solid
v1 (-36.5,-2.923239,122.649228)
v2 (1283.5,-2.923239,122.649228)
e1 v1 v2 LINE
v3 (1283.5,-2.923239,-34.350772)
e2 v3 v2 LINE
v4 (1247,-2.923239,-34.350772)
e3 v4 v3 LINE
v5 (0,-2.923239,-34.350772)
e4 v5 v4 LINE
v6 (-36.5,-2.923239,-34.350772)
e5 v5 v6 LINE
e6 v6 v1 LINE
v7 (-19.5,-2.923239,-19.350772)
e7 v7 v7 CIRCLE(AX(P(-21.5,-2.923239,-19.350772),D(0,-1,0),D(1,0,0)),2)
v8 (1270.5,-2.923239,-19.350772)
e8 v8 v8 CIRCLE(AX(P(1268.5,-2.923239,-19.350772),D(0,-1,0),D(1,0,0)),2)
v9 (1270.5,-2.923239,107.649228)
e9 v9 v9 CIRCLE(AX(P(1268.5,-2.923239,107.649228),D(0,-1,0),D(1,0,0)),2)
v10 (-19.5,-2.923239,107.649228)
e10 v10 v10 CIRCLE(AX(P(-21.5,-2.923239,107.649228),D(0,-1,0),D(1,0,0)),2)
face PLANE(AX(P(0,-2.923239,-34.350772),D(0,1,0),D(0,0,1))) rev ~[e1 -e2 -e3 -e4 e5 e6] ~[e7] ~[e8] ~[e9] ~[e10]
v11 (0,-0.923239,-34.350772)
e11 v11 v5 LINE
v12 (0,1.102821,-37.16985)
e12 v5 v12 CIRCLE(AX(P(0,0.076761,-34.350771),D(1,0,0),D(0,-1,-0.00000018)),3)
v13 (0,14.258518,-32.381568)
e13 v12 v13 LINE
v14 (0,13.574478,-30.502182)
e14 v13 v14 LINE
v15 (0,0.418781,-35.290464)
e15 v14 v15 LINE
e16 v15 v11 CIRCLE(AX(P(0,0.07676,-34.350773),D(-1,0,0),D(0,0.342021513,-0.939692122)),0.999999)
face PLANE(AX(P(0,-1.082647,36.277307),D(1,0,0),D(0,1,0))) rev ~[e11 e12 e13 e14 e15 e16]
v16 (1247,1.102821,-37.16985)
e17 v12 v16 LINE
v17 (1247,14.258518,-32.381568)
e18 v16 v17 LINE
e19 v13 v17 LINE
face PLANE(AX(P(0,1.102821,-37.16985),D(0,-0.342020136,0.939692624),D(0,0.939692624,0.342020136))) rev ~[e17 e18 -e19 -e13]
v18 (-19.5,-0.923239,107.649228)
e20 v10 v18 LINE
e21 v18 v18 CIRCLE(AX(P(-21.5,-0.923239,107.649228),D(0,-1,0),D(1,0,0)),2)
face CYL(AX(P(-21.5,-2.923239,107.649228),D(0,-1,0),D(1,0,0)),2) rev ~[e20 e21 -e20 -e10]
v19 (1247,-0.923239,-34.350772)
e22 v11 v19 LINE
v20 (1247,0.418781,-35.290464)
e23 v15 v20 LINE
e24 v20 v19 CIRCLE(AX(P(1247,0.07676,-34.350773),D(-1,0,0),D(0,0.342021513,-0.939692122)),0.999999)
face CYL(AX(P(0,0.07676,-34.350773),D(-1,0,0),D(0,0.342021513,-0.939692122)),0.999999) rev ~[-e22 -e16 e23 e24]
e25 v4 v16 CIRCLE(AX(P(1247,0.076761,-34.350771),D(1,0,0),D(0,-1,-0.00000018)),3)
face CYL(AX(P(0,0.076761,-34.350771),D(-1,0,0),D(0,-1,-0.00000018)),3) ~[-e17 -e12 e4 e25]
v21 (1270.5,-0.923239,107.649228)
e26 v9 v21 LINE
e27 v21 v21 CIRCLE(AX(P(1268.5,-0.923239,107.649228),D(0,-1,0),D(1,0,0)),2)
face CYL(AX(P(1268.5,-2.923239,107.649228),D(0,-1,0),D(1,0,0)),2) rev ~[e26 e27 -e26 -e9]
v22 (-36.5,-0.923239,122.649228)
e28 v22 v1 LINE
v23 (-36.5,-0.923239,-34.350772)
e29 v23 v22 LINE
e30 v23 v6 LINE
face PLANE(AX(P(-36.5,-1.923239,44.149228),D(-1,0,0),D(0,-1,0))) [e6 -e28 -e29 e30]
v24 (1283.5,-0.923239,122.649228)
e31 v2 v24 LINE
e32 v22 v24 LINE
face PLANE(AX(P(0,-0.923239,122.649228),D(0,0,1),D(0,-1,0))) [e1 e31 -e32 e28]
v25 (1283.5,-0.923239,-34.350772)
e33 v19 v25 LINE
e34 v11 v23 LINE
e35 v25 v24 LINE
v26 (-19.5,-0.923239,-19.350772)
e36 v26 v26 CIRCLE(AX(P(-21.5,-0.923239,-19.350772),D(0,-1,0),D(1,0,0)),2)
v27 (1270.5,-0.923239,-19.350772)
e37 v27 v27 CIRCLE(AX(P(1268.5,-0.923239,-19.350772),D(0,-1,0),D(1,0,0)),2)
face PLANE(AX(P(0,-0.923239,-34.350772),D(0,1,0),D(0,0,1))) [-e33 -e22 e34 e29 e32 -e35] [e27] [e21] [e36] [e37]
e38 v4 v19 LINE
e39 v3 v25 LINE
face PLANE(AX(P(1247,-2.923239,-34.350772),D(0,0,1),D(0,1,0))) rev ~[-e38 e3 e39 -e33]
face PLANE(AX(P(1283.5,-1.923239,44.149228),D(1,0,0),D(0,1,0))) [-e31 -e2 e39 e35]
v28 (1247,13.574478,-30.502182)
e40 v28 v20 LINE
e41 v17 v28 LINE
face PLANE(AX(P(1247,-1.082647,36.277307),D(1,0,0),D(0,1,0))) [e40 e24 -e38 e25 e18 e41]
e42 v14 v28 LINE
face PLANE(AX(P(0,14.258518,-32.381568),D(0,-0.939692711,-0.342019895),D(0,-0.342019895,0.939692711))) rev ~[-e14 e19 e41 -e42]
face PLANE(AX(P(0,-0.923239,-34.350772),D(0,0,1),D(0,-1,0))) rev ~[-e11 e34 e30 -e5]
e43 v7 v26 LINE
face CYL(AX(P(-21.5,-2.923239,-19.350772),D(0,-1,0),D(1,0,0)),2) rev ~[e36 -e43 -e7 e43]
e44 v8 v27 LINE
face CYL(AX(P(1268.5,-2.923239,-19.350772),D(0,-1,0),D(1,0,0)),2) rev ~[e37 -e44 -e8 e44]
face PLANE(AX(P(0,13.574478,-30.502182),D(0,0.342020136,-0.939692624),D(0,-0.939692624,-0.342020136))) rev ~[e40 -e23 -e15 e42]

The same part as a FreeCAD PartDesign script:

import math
import FreeCAD as App
import Part
import Sketcher
Q = App.Units.Quantity


def add_polygon(sketch, points):
    """Adds a closed chain of lines whose ends are joined by coincident constraints."""
    first, n = sketch.GeometryCount, len(points)
    for a, b in zip(points, points[1:] + points[:1]):
        sketch.addGeometry(Part.LineSegment(App.Vector(*a, 0), App.Vector(*b, 0)), False)
    for i in range(n):
        sketch.addConstraint(Sketcher.Constraint("Coincident", first + i, 2, first + (i + 1) % n, 1))

doc = App.newDocument("Part")
body = doc.addObject("PartDesign::Body", "Body")

# Sketch on YZ plane
sketch1 = doc.addObject("Sketcher::SketchObject", "Sketch")
body.addObject(sketch1)
sketch1.AttachmentSupport = (doc.YZ_Plane, [""])
sketch1.MapMode = "FlatFace"
sketch1.addGeometry([
    Part.LineSegment(App.Vector(-0.9, 122.6, 0), App.Vector(-2.9, 122.6, 0)),  # 0
    Part.LineSegment(App.Vector(-2.9, 122.6, 0), App.Vector(-2.9, -34.4, 0)),  # 1
    Part.ArcOfCircle(Part.Circle(App.Vector(0.1, -34.4, 0), App.Vector(0, 0, 1), 3), math.radians(-180), math.radians(-70)),  # 2
    Part.LineSegment(App.Vector(1.1, -37.2, 0), App.Vector(14.3, -32.4, 0)),  # 3
    Part.LineSegment(App.Vector(14.3, -32.4, 0), App.Vector(13.6, -30.5, 0)),  # 4
    Part.LineSegment(App.Vector(13.6, -30.5, 0), App.Vector(0.4, -35.3, 0)),  # 5
    Part.ArcOfCircle(Part.Circle(App.Vector(0.1, -34.4, 0), App.Vector(0, 0, 1), 1), math.radians(180), math.radians(290)),  # 6
    Part.LineSegment(App.Vector(-0.9, -34.4, 0), App.Vector(-0.9, 122.6, 0)),  # 7
], False)
sketch1.addConstraint([
    Sketcher.Constraint("Coincident", 0, 2, 1, 1),
    Sketcher.Constraint("Tangent", 1, 2, 2, 1),
    Sketcher.Constraint("Tangent", 2, 2, 3, 1),
    Sketcher.Constraint("Coincident", 3, 2, 4, 1),
    Sketcher.Constraint("Coincident", 4, 2, 5, 1),
    Sketcher.Constraint("Tangent", 5, 2, 6, 2),
    Sketcher.Constraint("Tangent", 6, 1, 7, 1),
    Sketcher.Constraint("Coincident", 7, 2, 0, 1),
    Sketcher.Constraint("Horizontal", 0),
    Sketcher.Constraint("Vertical", 1),
    Sketcher.Constraint("Vertical", 7),
    Sketcher.Constraint("Coincident", 6, 3, 2, 3),
    Sketcher.Constraint("Perpendicular", 3, 4),
    Sketcher.Constraint("Perpendicular", 4, 5),
    Sketcher.Constraint("Radius", 2, 3.0),
    Sketcher.Constraint("Radius", 6, 0.999999),
    Sketcher.Constraint("DistanceY", 1, 2, 1, 1, 157.0),
    Sketcher.Constraint("Angle", 3, Q("20 deg")),
    Sketcher.Constraint("Distance", 3, 14.0),
    Sketcher.Constraint("DistanceX", -1, 1, 2, 3, 0.076761),
    Sketcher.Constraint("DistanceY", 2, 3, -1, 1, 34.350771),
])
pad1 = doc.addObject("PartDesign::Pad", "Pad")
body.addObject(pad1)
pad1.Profile = sketch1
pad1.Length = 1247

# Sketch on YZ plane
sketch2 = doc.addObject("Sketcher::SketchObject", "Sketch001")
body.addObject(sketch2)
sketch2.AttachmentSupport = (doc.YZ_Plane, [""])
sketch2.MapMode = "FlatFace"
sketch2.AttachmentOffset = App.Placement(App.Vector(0, 0, 1247), App.Rotation())
add_polygon(sketch2, [(-2.9, 122.6), (-2.9, -34.4), (-0.9, -34.4), (-0.9, 122.6)])  # lines 0-3
sketch2.addConstraint([
    Sketcher.Constraint("Vertical", 0),
    Sketcher.Constraint("Horizontal", 1),
    Sketcher.Constraint("Vertical", 2),
    Sketcher.Constraint("Horizontal", 3),
    Sketcher.Constraint("DistanceX", 1, 1, 1, 2, 2.0),
    Sketcher.Constraint("DistanceY", 0, 2, 0, 1, 157.0),
    Sketcher.Constraint("DistanceX", 0, 2, -1, 1, 2.923239),
    Sketcher.Constraint("DistanceY", 0, 2, -1, 1, 34.350772),
])
pad2 = doc.addObject("PartDesign::Pad", "Pad001")
body.addObject(pad2)
pad2.Profile = sketch2
pad2.Length = 36.5

# Sketch on YZ plane
sketch3 = doc.addObject("Sketcher::SketchObject", "Sketch002")
body.addObject(sketch3)
sketch3.AttachmentSupport = (doc.YZ_Plane, [""])
sketch3.MapMode = "FlatFace"
add_polygon(sketch3, [(-0.9, 122.6), (-0.9, -34.4), (-2.9, -34.4), (-2.9, 122.6)])  # lines 0-3
sketch3.addConstraint([
    Sketcher.Constraint("Vertical", 0),
    Sketcher.Constraint("Horizontal", 1),
    Sketcher.Constraint("Vertical", 2),
    Sketcher.Constraint("Horizontal", 3),
    Sketcher.Constraint("DistanceX", 1, 2, 1, 1, 2.0),
    Sketcher.Constraint("DistanceY", 0, 2, 0, 1, 157.0),
    Sketcher.Constraint("DistanceX", 0, 2, -1, 1, 0.923239),
    Sketcher.Constraint("DistanceY", 0, 2, -1, 1, 34.350772),
])
pad3 = doc.addObject("PartDesign::Pad", "Pad002")
body.addObject(pad3)
pad3.Profile = sketch3
pad3.Length = 36.5
pad3.Reversed = True

# Sketch on XZ plane
sketch4 = doc.addObject("Sketcher::SketchObject", "Sketch003")
body.addObject(sketch4)
sketch4.AttachmentSupport = (doc.XZ_Plane, [""])
sketch4.MapMode = "FlatFace"
sketch4.AttachmentOffset = App.Placement(App.Vector(0, 0, 2.923239), App.Rotation())
sketch4.addGeometry([
    Part.Circle(App.Vector(-21.5, 107.6, 0), App.Vector(0, 0, 1), 2),
    Part.Circle(App.Vector(-21.5, -19.4, 0), App.Vector(0, 0, 1), 2),
    Part.Circle(App.Vector(1268.5, 107.6, 0), App.Vector(0, 0, 1), 2),
    Part.Circle(App.Vector(1268.5, -19.4, 0), App.Vector(0, 0, 1), 2),
], False)
sketch4.addConstraint([
    Sketcher.Constraint("Equal", 0, 1),
    Sketcher.Constraint("Equal", 1, 2),
    Sketcher.Constraint("Equal", 2, 3),
    Sketcher.Constraint("Horizontal", 0, 3, 2, 3),
    Sketcher.Constraint("Horizontal", 1, 3, 3, 3),
    Sketcher.Constraint("Vertical", 0, 3, 1, 3),
    Sketcher.Constraint("Vertical", 2, 3, 3, 3),
    Sketcher.Constraint("Diameter", 0, 4.0),
    Sketcher.Constraint("DistanceY", 1, 3, 0, 3, 127.0),
    Sketcher.Constraint("DistanceX", 0, 3, 2, 3, 1290.0),
    Sketcher.Constraint("DistanceX", 0, 3, -1, 1, 21.5),
    Sketcher.Constraint("DistanceY", 1, 3, -1, 1, 19.350772),
])
pocket1 = doc.addObject("PartDesign::Pocket", "Pocket")
body.addObject(pocket1)
pocket1.Profile = sketch4
pocket1.Type = "ThroughAll"

doc.recompute()
